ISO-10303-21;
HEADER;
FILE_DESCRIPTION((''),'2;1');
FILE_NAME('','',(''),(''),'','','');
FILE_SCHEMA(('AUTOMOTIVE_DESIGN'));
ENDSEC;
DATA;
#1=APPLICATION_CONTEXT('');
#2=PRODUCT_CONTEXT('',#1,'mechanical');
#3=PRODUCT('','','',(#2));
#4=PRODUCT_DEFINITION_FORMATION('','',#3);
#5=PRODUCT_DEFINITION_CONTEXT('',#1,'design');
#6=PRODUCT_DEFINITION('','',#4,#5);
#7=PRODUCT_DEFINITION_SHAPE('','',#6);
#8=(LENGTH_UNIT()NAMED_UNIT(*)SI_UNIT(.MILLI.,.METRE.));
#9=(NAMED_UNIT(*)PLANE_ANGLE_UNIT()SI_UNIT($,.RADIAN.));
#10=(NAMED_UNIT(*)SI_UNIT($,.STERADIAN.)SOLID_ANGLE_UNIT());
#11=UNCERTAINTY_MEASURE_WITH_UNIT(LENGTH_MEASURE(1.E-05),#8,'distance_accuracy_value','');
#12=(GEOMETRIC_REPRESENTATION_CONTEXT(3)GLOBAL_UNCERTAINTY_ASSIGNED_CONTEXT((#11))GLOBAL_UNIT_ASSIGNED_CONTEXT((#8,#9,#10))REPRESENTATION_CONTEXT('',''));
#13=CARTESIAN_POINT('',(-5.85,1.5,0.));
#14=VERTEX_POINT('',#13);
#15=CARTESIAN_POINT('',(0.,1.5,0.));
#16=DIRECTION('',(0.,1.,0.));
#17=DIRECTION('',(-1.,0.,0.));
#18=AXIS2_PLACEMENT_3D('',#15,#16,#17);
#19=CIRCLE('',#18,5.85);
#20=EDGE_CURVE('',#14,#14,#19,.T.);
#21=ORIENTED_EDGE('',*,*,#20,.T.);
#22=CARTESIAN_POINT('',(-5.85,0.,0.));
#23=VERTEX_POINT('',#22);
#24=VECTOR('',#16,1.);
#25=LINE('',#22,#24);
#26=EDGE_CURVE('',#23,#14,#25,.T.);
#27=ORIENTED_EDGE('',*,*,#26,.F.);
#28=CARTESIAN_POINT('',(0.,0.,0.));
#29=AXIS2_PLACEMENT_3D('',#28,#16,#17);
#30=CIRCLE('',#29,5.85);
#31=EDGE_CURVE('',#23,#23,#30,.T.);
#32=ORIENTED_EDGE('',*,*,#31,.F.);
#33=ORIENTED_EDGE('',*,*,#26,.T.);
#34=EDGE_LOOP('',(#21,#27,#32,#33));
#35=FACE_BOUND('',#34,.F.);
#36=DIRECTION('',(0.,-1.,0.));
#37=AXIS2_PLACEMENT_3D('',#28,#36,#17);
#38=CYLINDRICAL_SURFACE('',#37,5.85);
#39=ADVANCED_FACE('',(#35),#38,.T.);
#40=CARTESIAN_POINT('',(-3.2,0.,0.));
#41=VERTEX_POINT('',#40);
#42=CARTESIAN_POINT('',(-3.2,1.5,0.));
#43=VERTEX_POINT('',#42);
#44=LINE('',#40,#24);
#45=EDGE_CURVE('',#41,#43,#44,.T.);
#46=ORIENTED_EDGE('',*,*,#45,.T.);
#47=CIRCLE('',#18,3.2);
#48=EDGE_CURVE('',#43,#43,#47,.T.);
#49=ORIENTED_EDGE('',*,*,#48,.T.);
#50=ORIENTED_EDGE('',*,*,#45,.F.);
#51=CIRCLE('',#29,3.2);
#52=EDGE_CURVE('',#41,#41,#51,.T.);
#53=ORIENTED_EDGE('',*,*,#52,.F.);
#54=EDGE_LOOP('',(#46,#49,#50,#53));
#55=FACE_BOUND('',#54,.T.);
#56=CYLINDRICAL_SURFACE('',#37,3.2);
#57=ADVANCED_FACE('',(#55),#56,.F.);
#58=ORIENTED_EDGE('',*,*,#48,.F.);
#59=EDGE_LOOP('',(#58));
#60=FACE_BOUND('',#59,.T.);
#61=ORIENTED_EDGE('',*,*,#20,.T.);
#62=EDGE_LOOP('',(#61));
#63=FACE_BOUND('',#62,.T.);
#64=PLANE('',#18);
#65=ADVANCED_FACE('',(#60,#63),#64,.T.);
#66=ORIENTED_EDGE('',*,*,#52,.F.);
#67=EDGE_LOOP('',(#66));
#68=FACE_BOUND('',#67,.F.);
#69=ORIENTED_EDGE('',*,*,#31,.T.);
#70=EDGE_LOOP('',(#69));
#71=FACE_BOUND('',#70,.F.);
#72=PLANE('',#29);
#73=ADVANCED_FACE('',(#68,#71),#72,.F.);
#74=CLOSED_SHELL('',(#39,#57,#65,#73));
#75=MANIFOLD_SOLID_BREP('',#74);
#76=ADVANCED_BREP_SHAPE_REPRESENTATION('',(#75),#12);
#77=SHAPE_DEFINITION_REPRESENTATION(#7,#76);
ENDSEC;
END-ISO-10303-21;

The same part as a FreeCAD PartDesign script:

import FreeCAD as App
import Part
import Sketcher

doc = App.newDocument("Part")
body = doc.addObject("PartDesign::Body", "Body")

sketch1 = body.newObject("Sketcher::SketchObject", "Sketch")
sketch1.AttachmentSupport = (doc.getObject("XZ_Plane"), [""])
sketch1.MapMode = "FlatFace"
sketch1.addGeometry([
    Part.Circle(App.Vector(0, 0, 0), App.Vector(0, 0, 1), 5.85),
    Part.Circle(App.Vector(0, 0, 0), App.Vector(0, 0, 1), 3.2),
], False)
sketch1.addConstraint([
    Sketcher.Constraint("Coincident", 0, 3, -1, 1),
    Sketcher.Constraint("Coincident", 1, 3, -1, 1),
    Sketcher.Constraint("Diameter", 0, 11.7),
    Sketcher.Constraint("Diameter", 1, 6.4),
])
pad1 = body.newObject("PartDesign::Pad", "Pad")
pad1.Profile = sketch1
pad1.Length = 1.5
pad1.Reversed = True

doc.recompute()
